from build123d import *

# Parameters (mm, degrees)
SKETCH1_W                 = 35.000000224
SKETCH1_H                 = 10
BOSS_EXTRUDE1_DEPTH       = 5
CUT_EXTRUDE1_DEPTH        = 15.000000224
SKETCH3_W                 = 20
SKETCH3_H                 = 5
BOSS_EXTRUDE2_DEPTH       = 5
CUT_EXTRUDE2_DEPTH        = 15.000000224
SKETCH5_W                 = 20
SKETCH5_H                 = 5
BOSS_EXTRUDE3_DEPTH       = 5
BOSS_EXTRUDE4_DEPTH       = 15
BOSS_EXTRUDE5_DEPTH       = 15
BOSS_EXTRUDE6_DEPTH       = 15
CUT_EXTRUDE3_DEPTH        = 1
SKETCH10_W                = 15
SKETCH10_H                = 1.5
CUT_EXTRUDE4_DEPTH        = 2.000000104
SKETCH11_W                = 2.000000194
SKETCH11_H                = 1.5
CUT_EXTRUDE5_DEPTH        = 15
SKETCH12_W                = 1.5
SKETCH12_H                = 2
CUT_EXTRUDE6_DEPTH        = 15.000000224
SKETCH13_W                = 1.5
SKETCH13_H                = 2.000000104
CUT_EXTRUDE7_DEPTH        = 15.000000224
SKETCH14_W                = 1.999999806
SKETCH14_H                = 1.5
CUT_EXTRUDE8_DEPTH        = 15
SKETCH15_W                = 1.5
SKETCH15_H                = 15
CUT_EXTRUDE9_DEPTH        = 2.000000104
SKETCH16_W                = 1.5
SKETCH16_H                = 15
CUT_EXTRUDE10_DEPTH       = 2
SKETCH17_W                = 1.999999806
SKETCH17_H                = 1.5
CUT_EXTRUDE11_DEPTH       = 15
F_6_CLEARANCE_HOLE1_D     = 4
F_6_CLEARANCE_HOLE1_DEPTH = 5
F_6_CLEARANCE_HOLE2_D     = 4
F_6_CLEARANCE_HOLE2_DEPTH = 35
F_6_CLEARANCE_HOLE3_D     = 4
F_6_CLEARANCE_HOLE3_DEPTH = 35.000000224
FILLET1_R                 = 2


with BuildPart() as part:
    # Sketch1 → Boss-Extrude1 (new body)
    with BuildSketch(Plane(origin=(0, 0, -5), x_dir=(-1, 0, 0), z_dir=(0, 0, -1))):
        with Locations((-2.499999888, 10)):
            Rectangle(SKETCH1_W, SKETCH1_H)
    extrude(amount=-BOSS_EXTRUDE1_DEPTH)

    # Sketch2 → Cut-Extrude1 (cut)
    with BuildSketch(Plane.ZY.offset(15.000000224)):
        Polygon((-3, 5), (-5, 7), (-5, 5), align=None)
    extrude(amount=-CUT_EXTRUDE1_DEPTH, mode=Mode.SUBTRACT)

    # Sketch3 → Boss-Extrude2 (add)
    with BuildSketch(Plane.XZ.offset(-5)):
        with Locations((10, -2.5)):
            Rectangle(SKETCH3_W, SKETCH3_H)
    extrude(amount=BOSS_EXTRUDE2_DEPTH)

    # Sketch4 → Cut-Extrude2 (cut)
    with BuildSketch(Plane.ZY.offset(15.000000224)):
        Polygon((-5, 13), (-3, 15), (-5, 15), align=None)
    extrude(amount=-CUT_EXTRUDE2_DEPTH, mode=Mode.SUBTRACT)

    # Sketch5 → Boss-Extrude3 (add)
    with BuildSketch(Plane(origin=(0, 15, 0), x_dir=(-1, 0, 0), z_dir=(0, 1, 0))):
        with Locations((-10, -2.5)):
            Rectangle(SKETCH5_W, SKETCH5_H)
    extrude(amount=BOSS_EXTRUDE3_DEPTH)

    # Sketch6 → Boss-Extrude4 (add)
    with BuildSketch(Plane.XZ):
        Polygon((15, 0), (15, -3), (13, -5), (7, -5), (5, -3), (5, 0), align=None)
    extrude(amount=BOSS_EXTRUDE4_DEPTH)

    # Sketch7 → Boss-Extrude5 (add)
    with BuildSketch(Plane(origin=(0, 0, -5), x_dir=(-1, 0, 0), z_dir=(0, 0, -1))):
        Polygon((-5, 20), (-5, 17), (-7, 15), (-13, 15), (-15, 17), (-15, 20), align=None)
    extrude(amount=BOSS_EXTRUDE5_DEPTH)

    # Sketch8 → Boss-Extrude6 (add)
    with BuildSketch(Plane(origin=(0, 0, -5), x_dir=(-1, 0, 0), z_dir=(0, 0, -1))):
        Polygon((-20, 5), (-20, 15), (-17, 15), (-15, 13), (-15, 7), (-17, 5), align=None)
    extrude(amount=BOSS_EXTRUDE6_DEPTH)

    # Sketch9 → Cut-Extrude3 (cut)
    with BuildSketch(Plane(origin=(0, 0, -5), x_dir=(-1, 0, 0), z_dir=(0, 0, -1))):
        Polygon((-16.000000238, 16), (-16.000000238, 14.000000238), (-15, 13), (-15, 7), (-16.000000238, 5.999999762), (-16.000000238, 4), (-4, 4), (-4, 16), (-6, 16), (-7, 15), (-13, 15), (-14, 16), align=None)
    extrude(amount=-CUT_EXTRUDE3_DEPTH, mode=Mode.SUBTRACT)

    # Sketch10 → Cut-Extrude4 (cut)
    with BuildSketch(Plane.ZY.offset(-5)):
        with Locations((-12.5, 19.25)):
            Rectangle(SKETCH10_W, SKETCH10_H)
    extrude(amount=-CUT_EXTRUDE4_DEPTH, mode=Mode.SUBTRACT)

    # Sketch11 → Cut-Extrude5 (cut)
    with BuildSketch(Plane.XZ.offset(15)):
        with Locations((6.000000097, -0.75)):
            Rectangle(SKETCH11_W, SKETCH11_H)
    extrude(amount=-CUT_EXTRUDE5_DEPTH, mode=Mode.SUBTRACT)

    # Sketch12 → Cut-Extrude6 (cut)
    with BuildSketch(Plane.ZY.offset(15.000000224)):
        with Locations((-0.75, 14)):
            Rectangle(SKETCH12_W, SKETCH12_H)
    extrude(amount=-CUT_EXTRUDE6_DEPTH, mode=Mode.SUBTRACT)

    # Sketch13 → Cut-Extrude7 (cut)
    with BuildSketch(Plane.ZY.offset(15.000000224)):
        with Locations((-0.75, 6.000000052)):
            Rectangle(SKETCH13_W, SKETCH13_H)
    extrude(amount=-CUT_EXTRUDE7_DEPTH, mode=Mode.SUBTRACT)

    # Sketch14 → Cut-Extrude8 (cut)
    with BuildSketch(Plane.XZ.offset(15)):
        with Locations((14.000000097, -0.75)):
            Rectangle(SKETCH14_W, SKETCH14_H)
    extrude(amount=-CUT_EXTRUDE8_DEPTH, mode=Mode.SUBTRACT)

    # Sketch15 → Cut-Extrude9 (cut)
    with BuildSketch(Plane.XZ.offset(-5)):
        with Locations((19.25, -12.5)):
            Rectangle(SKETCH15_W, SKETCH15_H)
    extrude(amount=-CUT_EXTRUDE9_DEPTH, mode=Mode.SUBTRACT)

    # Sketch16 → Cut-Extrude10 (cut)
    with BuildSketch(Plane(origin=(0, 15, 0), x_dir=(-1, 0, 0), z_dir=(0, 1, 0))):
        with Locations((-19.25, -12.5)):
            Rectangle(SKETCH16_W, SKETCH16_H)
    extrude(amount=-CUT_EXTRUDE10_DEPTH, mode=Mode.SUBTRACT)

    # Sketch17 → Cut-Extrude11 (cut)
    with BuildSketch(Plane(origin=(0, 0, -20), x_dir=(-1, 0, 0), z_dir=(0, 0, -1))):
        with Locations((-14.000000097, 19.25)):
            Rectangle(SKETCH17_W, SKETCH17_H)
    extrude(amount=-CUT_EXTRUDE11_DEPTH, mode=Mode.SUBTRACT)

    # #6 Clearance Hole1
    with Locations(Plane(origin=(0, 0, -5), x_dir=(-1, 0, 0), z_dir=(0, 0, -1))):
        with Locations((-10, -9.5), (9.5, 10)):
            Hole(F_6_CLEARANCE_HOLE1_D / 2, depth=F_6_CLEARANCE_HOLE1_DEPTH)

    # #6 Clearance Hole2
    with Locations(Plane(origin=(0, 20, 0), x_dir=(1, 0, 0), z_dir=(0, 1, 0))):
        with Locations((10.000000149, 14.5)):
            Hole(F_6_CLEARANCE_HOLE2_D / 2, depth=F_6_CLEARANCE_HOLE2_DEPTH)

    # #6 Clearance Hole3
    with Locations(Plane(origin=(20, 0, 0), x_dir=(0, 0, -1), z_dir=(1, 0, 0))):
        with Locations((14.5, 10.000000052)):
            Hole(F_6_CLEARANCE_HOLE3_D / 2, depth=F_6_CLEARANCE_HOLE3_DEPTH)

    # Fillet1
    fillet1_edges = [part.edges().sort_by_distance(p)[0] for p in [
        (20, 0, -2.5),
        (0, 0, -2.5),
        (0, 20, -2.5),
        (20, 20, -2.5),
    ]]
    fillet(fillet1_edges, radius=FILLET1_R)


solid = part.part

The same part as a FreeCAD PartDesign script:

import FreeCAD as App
import Part
import Sketcher

V = App.Vector
Q = App.Units.Quantity


def edges_at(feature, points):
    """Names of the edges that pass closest to the given points."""
    edges = feature.Shape.Edges
    near = lambda p: min(range(len(edges)), key=lambda i: edges[i].distToShape(Part.Vertex(*p))[0])
    return sorted({f"Edge{near(p) + 1}" for p in points})

doc = App.newDocument("Part")
body = doc.addObject("PartDesign::Body", "Body")

# Sketch on XY plane
sketch1 = doc.addObject("Sketcher::SketchObject", "Sketch")
body.addObject(sketch1)
sketch1.AttachmentSupport = (doc.XY_Plane, [""])
sketch1.MapMode = "FlatFace"
sketch1.AttachmentOffset = App.Placement(V(0, 0, -5), App.Rotation())
sketch1.addGeometry(Part.LineSegment(V(20, 15, 0), V(20, 5, 0)), False)
sketch1.addGeometry(Part.LineSegment(V(20, 5, 0), V(-15, 5, 0)), False)
sketch1.addGeometry(Part.LineSegment(V(-15, 5, 0), V(-15, 15, 0)), False)
sketch1.addGeometry(Part.LineSegment(V(-15, 15, 0), V(20, 15, 0)), False)
sketch1.addConstraint(Sketcher.Constraint("Coincident", 0, 2, 1, 1))
sketch1.addConstraint(Sketcher.Constraint("Coincident", 1, 2, 2, 1))
sketch1.addConstraint(Sketcher.Constraint("Coincident", 2, 2, 3, 1))
sketch1.addConstraint(Sketcher.Constraint("Coincident", 3, 2, 0, 1))
sketch1.addConstraint(Sketcher.Constraint("Vertical", 0))
sketch1.addConstraint(Sketcher.Constraint("Horizontal", 1))
sketch1.addConstraint(Sketcher.Constraint("Vertical", 2))
sketch1.addConstraint(Sketcher.Constraint("Horizontal", 3))
sketch1.addConstraint(Sketcher.Constraint("DistanceX", 1, 2, 1, 1, Q("35 mm")))
sketch1.addConstraint(Sketcher.Constraint("DistanceY", 0, 2, 0, 1, Q("10 mm")))
sketch1.addConstraint(Sketcher.Constraint("DistanceX", -1, 1, 0, 2, Q("20 mm")))
sketch1.addConstraint(Sketcher.Constraint("DistanceY", -1, 1, 0, 2, Q("5 mm")))
pad1 = doc.addObject("PartDesign::Pad", "Pad")
body.addObject(pad1)
pad1.Profile = sketch1
pad1.Length = 5

# Sketch on YZ plane
sketch2 = doc.addObject("Sketcher::SketchObject", "Sketch001")
body.addObject(sketch2)
sketch2.AttachmentSupport = (doc.YZ_Plane, [""])
sketch2.MapMode = "FlatFace"
sketch2.AttachmentOffset = App.Placement(V(0, 0, -15), App.Rotation())
sketch2.addGeometry(Part.LineSegment(V(5, -3, 0), V(7, -5, 0)), False)
sketch2.addGeometry(Part.LineSegment(V(7, -5, 0), V(5, -5, 0)), False)
sketch2.addGeometry(Part.LineSegment(V(5, -5, 0), V(5, -3, 0)), False)
sketch2.addConstraint(Sketcher.Constraint("Coincident", 0, 2, 1, 1))
sketch2.addConstraint(Sketcher.Constraint("Coincident", 1, 2, 2, 1))
sketch2.addConstraint(Sketcher.Constraint("Coincident", 2, 2, 0, 1))
sketch2.addConstraint(Sketcher.Constraint("Horizontal", 1))
sketch2.addConstraint(Sketcher.Constraint("Vertical", 2))
sketch2.addConstraint(Sketcher.Constraint("Equal", 1, 2))
sketch2.addConstraint(Sketcher.Constraint("DistanceX", 1, 2, 1, 1, Q("2 mm")))
sketch2.addConstraint(Sketcher.Constraint("DistanceX", -1, 1, 0, 2, Q("7 mm")))
sketch2.addConstraint(Sketcher.Constraint("DistanceY", 0, 2, -1, 1, Q("5 mm")))
pocket1 = doc.addObject("PartDesign::Pocket", "Pocket")
body.addObject(pocket1)
pocket1.Profile = sketch2
pocket1.Length = 15
pocket1.Reversed = True

# Sketch on XZ plane
sketch3 = doc.addObject("Sketcher::SketchObject", "Sketch002")
body.addObject(sketch3)
sketch3.AttachmentSupport = (doc.XZ_Plane, [""])
sketch3.MapMode = "FlatFace"
sketch3.AttachmentOffset = App.Placement(V(0, 0, -5), App.Rotation())
sketch3.addGeometry(Part.LineSegment(V(0, 0, 0), V(0, -5, 0)), False)
sketch3.addGeometry(Part.LineSegment(V(0, -5, 0), V(20, -5, 0)), False)
sketch3.addGeometry(Part.LineSegment(V(20, -5, 0), V(20, 0, 0)), False)
sketch3.addGeometry(Part.LineSegment(V(20, 0, 0), V(0, 0, 0)), False)
sketch3.addConstraint(Sketcher.Constraint("Coincident", 0, 2, 1, 1))
sketch3.addConstraint(Sketcher.Constraint("Coincident", 1, 2, 2, 1))
sketch3.addConstraint(Sketcher.Constraint("Coincident", 2, 2, 3, 1))
sketch3.addConstraint(Sketcher.Constraint("Coincident", 3, 2, 0, 1))
sketch3.addConstraint(Sketcher.Constraint("Vertical", 0))
sketch3.addConstraint(Sketcher.Constraint("Horizontal", 1))
sketch3.addConstraint(Sketcher.Constraint("Vertical", 2))
sketch3.addConstraint(Sketcher.Constraint("Horizontal", 3))
sketch3.addConstraint(Sketcher.Constraint("Coincident", 3, 2, -1, 1))
sketch3.addConstraint(Sketcher.Constraint("DistanceX", 1, 1, 1, 2, Q("20 mm")))
sketch3.addConstraint(Sketcher.Constraint("DistanceY", 0, 2, 0, 1, Q("5 mm")))
pad2 = doc.addObject("PartDesign::Pad", "Pad001")
body.addObject(pad2)
pad2.Profile = sketch3
pad2.Length = 5

# Sketch on YZ plane
sketch4 = doc.addObject("Sketcher::SketchObject", "Sketch003")
body.addObject(sketch4)
sketch4.AttachmentSupport = (doc.YZ_Plane, [""])
sketch4.MapMode = "FlatFace"
sketch4.AttachmentOffset = App.Placement(V(0, 0, -15), App.Rotation())
sketch4.addGeometry(Part.LineSegment(V(13, -5, 0), V(15, -3, 0)), False)
sketch4.addGeometry(Part.LineSegment(V(15, -3, 0), V(15, -5, 0)), False)
sketch4.addGeometry(Part.LineSegment(V(15, -5, 0), V(13, -5, 0)), False)
sketch4.addConstraint(Sketcher.Constraint("Coincident", 0, 2, 1, 1))
sketch4.addConstraint(Sketcher.Constraint("Coincident", 1, 2, 2, 1))
sketch4.addConstraint(Sketcher.Constraint("Coincident", 2, 2, 0, 1))
sketch4.addConstraint(Sketcher.Constraint("Vertical", 1))
sketch4.addConstraint(Sketcher.Constraint("Horizontal", 2))
sketch4.addConstraint(Sketcher.Constraint("Equal", 2, 1))
sketch4.addConstraint(Sketcher.Constraint("DistanceX", 2, 2, 2, 1, Q("2 mm")))
sketch4.addConstraint(Sketcher.Constraint("DistanceX", -1, 1, 0, 2, Q("15 mm")))
sketch4.addConstraint(Sketcher.Constraint("DistanceY", 0, 2, -1, 1, Q("3 mm")))
pocket2 = doc.addObject("PartDesign::Pocket", "Pocket001")
body.addObject(pocket2)
pocket2.Profile = sketch4
pocket2.Length = 15
pocket2.Reversed = True

# Sketch on XZ plane
sketch5 = doc.addObject("Sketcher::SketchObject", "Sketch004")
body.addObject(sketch5)
sketch5.AttachmentSupport = (doc.XZ_Plane, [""])
sketch5.MapMode = "FlatFace"
sketch5.AttachmentOffset = App.Placement(V(0, 0, -15), App.Rotation())
sketch5.addGeometry(Part.LineSegment(V(20, 0, 0), V(20, -5, 0)), False)
sketch5.addGeometry(Part.LineSegment(V(20, -5, 0), V(0, -5, 0)), False)
sketch5.addGeometry(Part.LineSegment(V(0, -5, 0), V(0, 0, 0)), False)
sketch5.addGeometry(Part.LineSegment(V(0, 0, 0), V(20, 0, 0)), False)
sketch5.addConstraint(Sketcher.Constraint("Coincident", 0, 2, 1, 1))
sketch5.addConstraint(Sketcher.Constraint("Coincident", 1, 2, 2, 1))
sketch5.addConstraint(Sketcher.Constraint("Coincident", 2, 2, 3, 1))
sketch5.addConstraint(Sketcher.Constraint("Coincident", 3, 2, 0, 1))
sketch5.addConstraint(Sketcher.Constraint("Vertical", 0))
sketch5.addConstraint(Sketcher.Constraint("Horizontal", 1))
sketch5.addConstraint(Sketcher.Constraint("Vertical", 2))
sketch5.addConstraint(Sketcher.Constraint("Horizontal", 3))
sketch5.addConstraint(Sketcher.Constraint("Coincident", 2, 2, -1, 1))
sketch5.addConstraint(Sketcher.Constraint("DistanceX", 1, 2, 1, 1, Q("20 mm")))
sketch5.addConstraint(Sketcher.Constraint("DistanceY", 0, 2, 0, 1, Q("5 mm")))
pad3 = doc.addObject("PartDesign::Pad", "Pad002")
body.addObject(pad3)
pad3.Profile = sketch5
pad3.Length = 5
pad3.Reversed = True

# Sketch on XZ plane
sketch6 = doc.addObject("Sketcher::SketchObject", "Sketch005")
body.addObject(sketch6)
sketch6.AttachmentSupport = (doc.XZ_Plane, [""])
sketch6.MapMode = "FlatFace"
sketch6.addGeometry(Part.LineSegment(V(15, -3, 0), V(15, 0, 0)), False)
sketch6.addGeometry(Part.LineSegment(V(15, 0, 0), V(5, 0, 0)), False)
sketch6.addGeometry(Part.LineSegment(V(5, 0, 0), V(5, -3, 0)), False)
sketch6.addGeometry(Part.LineSegment(V(5, -3, 0), V(7, -5, 0)), False)
sketch6.addGeometry(Part.LineSegment(V(7, -5, 0), V(13, -5, 0)), False)
sketch6.addGeometry(Part.LineSegment(V(13, -5, 0), V(15, -3, 0)), False)
sketch6.addConstraint(Sketcher.Constraint("Coincident", 0, 2, 1, 1))
sketch6.addConstraint(Sketcher.Constraint("Coincident", 1, 2, 2, 1))
sketch6.addConstraint(Sketcher.Constraint("Coincident", 2, 2, 3, 1))
sketch6.addConstraint(Sketcher.Constraint("Coincident", 3, 2, 4, 1))
sketch6.addConstraint(Sketcher.Constraint("Coincident", 4, 2, 5, 1))
sketch6.addConstraint(Sketcher.Constraint("Coincident", 5, 2, 0, 1))
sketch6.addConstraint(Sketcher.Constraint("Vertical", 0))
sketch6.addConstraint(Sketcher.Constraint("Horizontal", 1))
sketch6.addConstraint(Sketcher.Constraint("Vertical", 2))
sketch6.addConstraint(Sketcher.Constraint("Horizontal", 4))
sketch6.addConstraint(Sketcher.Constraint("PointOnObject", 0, 2, -1))
sketch6.addConstraint(Sketcher.Constraint("Perpendicular", 3, 5))
sketch6.addConstraint(Sketcher.Constraint("Horizontal", 2, 2, 5, 2))
sketch6.addConstraint(Sketcher.Constraint("Equal", 3, 5))
sketch6.addConstraint(Sketcher.Constraint("DistanceX", 1, 2, 1, 1, Q("10 mm")))
sketch6.addConstraint(Sketcher.Constraint("DistanceX", 4, 1, 4, 2, Q("6 mm")))
sketch6.addConstraint(Sketcher.Constraint("DistanceY", 0, 1, 0, 2, Q("3 mm")))
sketch6.addConstraint(Sketcher.Constraint("DistanceX", -1, 1, 0, 2, Q("15 mm")))
pad4 = doc.addObject("PartDesign::Pad", "Pad003")
body.addObject(pad4)
pad4.Profile = sketch6
pad4.Length = 15

# Sketch on XY plane
sketch7 = doc.addObject("Sketcher::SketchObject", "Sketch006")
body.addObject(sketch7)
sketch7.AttachmentSupport = (doc.XY_Plane, [""])
sketch7.MapMode = "FlatFace"
sketch7.AttachmentOffset = App.Placement(V(0, 0, -5), App.Rotation())
sketch7.addGeometry(Part.LineSegment(V(5, 17, 0), V(5, 20, 0)), False)
sketch7.addGeometry(Part.LineSegment(V(5, 20, 0), V(15, 20, 0)), False)
sketch7.addGeometry(Part.LineSegment(V(15, 20, 0), V(15, 17, 0)), False)
sketch7.addGeometry(Part.LineSegment(V(15, 17, 0), V(13, 15, 0)), False)
sketch7.addGeometry(Part.LineSegment(V(13, 15, 0), V(7, 15, 0)), False)
sketch7.addGeometry(Part.LineSegment(V(7, 15, 0), V(5, 17, 0)), False)
sketch7.addConstraint(Sketcher.Constraint("Coincident", 0, 2, 1, 1))
sketch7.addConstraint(Sketcher.Constraint("Coincident", 1, 2, 2, 1))
sketch7.addConstraint(Sketcher.Constraint("Coincident", 2, 2, 3, 1))
sketch7.addConstraint(Sketcher.Constraint("Coincident", 3, 2, 4, 1))
sketch7.addConstraint(Sketcher.Constraint("Coincident", 4, 2, 5, 1))
sketch7.addConstraint(Sketcher.Constraint("Coincident", 5, 2, 0, 1))
sketch7.addConstraint(Sketcher.Constraint("Vertical", 0))
sketch7.addConstraint(Sketcher.Constraint("Horizontal", 1))
sketch7.addConstraint(Sketcher.Constraint("Vertical", 2))
sketch7.addConstraint(Sketcher.Constraint("Horizontal", 4))
sketch7.addConstraint(Sketcher.Constraint("Perpendicular", 3, 5))
sketch7.addConstraint(Sketcher.Constraint("Horizontal", 2, 2, 5, 2))
sketch7.addConstraint(Sketcher.Constraint("Equal", 3, 5))
sketch7.addConstraint(Sketcher.Constraint("DistanceX", 1, 1, 1, 2, Q("10 mm")))
sketch7.addConstraint(Sketcher.Constraint("DistanceX", 4, 2, 4, 1, Q("6 mm")))
sketch7.addConstraint(Sketcher.Constraint("DistanceY", 0, 1, 0, 2, Q("3 mm")))
sketch7.addConstraint(Sketcher.Constraint("DistanceX", -1, 1, 0, 2, Q("5 mm")))
sketch7.addConstraint(Sketcher.Constraint("DistanceY", -1, 1, 0, 2, Q("20 mm")))
pad5 = doc.addObject("PartDesign::Pad", "Pad004")
body.addObject(pad5)
pad5.Profile = sketch7
pad5.Length = 15
pad5.Reversed = True

# Sketch on XY plane
sketch8 = doc.addObject("Sketcher::SketchObject", "Sketch007")
body.addObject(sketch8)
sketch8.AttachmentSupport = (doc.XY_Plane, [""])
sketch8.MapMode = "FlatFace"
sketch8.AttachmentOffset = App.Placement(V(0, 0, -5), App.Rotation())
sketch8.addGeometry(Part.LineSegment(V(20, 15, 0), V(20, 5, 0)), False)
sketch8.addGeometry(Part.LineSegment(V(20, 5, 0), V(17, 5, 0)), False)
sketch8.addGeometry(Part.LineSegment(V(17, 5, 0), V(15, 7, 0)), False)
sketch8.addGeometry(Part.LineSegment(V(15, 7, 0), V(15, 13, 0)), False)
sketch8.addGeometry(Part.LineSegment(V(15, 13, 0), V(17, 15, 0)), False)
sketch8.addGeometry(Part.LineSegment(V(17, 15, 0), V(20, 15, 0)), False)
sketch8.addConstraint(Sketcher.Constraint("Coincident", 0, 2, 1, 1))
sketch8.addConstraint(Sketcher.Constraint("Coincident", 1, 2, 2, 1))
sketch8.addConstraint(Sketcher.Constraint("Coincident", 2, 2, 3, 1))
sketch8.addConstraint(Sketcher.Constraint("Coincident", 3, 2, 4, 1))
sketch8.addConstraint(Sketcher.Constraint("Coincident", 4, 2, 5, 1))
sketch8.addConstraint(Sketcher.Constraint("Coincident", 5, 2, 0, 1))
sketch8.addConstraint(Sketcher.Constraint("Vertical", 0))
sketch8.addConstraint(Sketcher.Constraint("Horizontal", 1))
sketch8.addConstraint(Sketcher.Constraint("Vertical", 3))
sketch8.addConstraint(Sketcher.Constraint("Horizontal", 5))
sketch8.addConstraint(Sketcher.Constraint("Perpendicular", 2, 4))
sketch8.addConstraint(Sketcher.Constraint("Vertical", 1, 2, 4, 2))
sketch8.addConstraint(Sketcher.Constraint("Equal", 2, 4))
sketch8.addConstraint(Sketcher.Constraint("DistanceX", 1, 2, 1, 1, Q("3 mm")))
sketch8.addConstraint(Sketcher.Constraint("DistanceY", 0, 2, 0, 1, Q("10 mm")))
sketch8.addConstraint(Sketcher.Constraint("DistanceY", 3, 1, 3, 2, Q("6 mm")))
sketch8.addConstraint(Sketcher.Constraint("DistanceX", -1, 1, 0, 2, Q("20 mm")))
sketch8.addConstraint(Sketcher.Constraint("DistanceY", -1, 1, 0, 2, Q("5 mm")))
pad6 = doc.addObject("PartDesign::Pad", "Pad005")
body.addObject(pad6)
pad6.Profile = sketch8
pad6.Length = 15
pad6.Reversed = True

# Sketch on XY plane
sketch9 = doc.addObject("Sketcher::SketchObject", "Sketch008")
body.addObject(sketch9)
sketch9.AttachmentSupport = (doc.XY_Plane, [""])
sketch9.MapMode = "FlatFace"
sketch9.AttachmentOffset = App.Placement(V(0, 0, -5), App.Rotation())
sketch9.addGeometry(Part.LineSegment(V(16, 16, 0), V(16, 14, 0)), False)
sketch9.addGeometry(Part.LineSegment(V(16, 14, 0), V(15, 13, 0)), False)
sketch9.addGeometry(Part.LineSegment(V(15, 13, 0), V(15, 7, 0)), False)
sketch9.addGeometry(Part.LineSegment(V(15, 7, 0), V(16, 6, 0)), False)
sketch9.addGeometry(Part.LineSegment(V(16, 6, 0), V(16, 4, 0)), False)
sketch9.addGeometry(Part.LineSegment(V(16, 4, 0), V(4, 4, 0)), False)
sketch9.addGeometry(Part.LineSegment(V(4, 4, 0), V(4, 16, 0)), False)
sketch9.addGeometry(Part.LineSegment(V(4, 16, 0), V(6, 16, 0)), False)
sketch9.addGeometry(Part.LineSegment(V(6, 16, 0), V(7, 15, 0)), False)
sketch9.addGeometry(Part.LineSegment(V(7, 15, 0), V(13, 15, 0)), False)
sketch9.addGeometry(Part.LineSegment(V(13, 15, 0), V(14, 16, 0)), False)
sketch9.addGeometry(Part.LineSegment(V(14, 16, 0), V(16, 16, 0)), False)
sketch9.addConstraint(Sketcher.Constraint("Coincident", 0, 2, 1, 1))
sketch9.addConstraint(Sketcher.Constraint("Coincident", 1, 2, 2, 1))
sketch9.addConstraint(Sketcher.Constraint("Coincident", 2, 2, 3, 1))
sketch9.addConstraint(Sketcher.Constraint("Coincident", 3, 2, 4, 1))
sketch9.addConstraint(Sketcher.Constraint("Coincident", 4, 2, 5, 1))
sketch9.addConstraint(Sketcher.Constraint("Coincident", 5, 2, 6, 1))
sketch9.addConstraint(Sketcher.Constraint("Coincident", 6, 2, 7, 1))
sketch9.addConstraint(Sketcher.Constraint("Coincident", 7, 2, 8, 1))
sketch9.addConstraint(Sketcher.Constraint("Coincident", 8, 2, 9, 1))
sketch9.addConstraint(Sketcher.Constraint("Coincident", 9, 2, 10, 1))
sketch9.addConstraint(Sketcher.Constraint("Coincident", 10, 2, 11, 1))
sketch9.addConstraint(Sketcher.Constraint("Coincident", 11, 2, 0, 1))
sketch9.addConstraint(Sketcher.Constraint("Vertical", 0))
sketch9.addConstraint(Sketcher.Constraint("Vertical", 2))
sketch9.addConstraint(Sketcher.Constraint("Vertical", 4))
sketch9.addConstraint(Sketcher.Constraint("Horizontal", 5))
sketch9.addConstraint(Sketcher.Constraint("Vertical", 6))
sketch9.addConstraint(Sketcher.Constraint("Horizontal", 7))
sketch9.addConstraint(Sketcher.Constraint("Horizontal", 9))
sketch9.addConstraint(Sketcher.Constraint("Horizontal", 11))
sketch9.addConstraint(Sketcher.Constraint("Perpendicular", 1, 3))
sketch9.addConstraint(Sketcher.Constraint("Parallel", 3, 8))
sketch9.addConstraint(Sketcher.Constraint("Perpendicular", 8, 10))
sketch9.addConstraint(Sketcher.Constraint("Horizontal", 7, 2, 10, 2))
sketch9.addConstraint(Sketcher.Constraint("Vertical", 0, 2, 3, 2))
sketch9.addConstraint(Sketcher.Constraint("Equal", 7, 11))
sketch9.addConstraint(Sketcher.Constraint("Equal", 11, 0))
sketch9.addConstraint(Sketcher.Constraint("Equal", 9, 2))
sketch9.addConstraint(Sketcher.Constraint("Equal", 0, 4))
sketch9.addConstraint(Sketcher.Constraint("Equal", 5, 6))
sketch9.addConstraint(Sketcher.Constraint("Equal", 1, 3))
sketch9.addConstraint(Sketcher.Constraint("DistanceX", 5, 2, 5, 1, Q("12 mm")))
sketch9.addConstraint(Sketcher.Constraint("DistanceX", 7, 1, 7, 2, Q("2 mm")))
sketch9.addConstraint(Sketcher.Constraint("DistanceX", 9, 1, 9, 2, Q("6 mm")))
sketch9.addConstraint(Sketcher.Constraint("DistanceX", -1, 1, 0, 2, Q("16 mm")))
sketch9.addConstraint(Sketcher.Constraint("DistanceY", -1, 1, 0, 2, Q("14 mm")))
pocket3 = doc.addObject("PartDesign::Pocket", "Pocket002")
body.addObject(pocket3)
pocket3.Profile = sketch9
pocket3.Length = 1
pocket3.Reversed = True

# Sketch on YZ plane
sketch10 = doc.addObject("Sketcher::SketchObject", "Sketch009")
body.addObject(sketch10)
sketch10.AttachmentSupport = (doc.YZ_Plane, [""])
sketch10.MapMode = "FlatFace"
sketch10.AttachmentOffset = App.Placement(V(0, 0, 5), App.Rotation())
sketch10.addGeometry(Part.LineSegment(V(20, -20, 0), V(18.5, -20, 0)), False)
sketch10.addGeometry(Part.LineSegment(V(18.5, -20, 0), V(18.5, -5, 0)), False)
sketch10.addGeometry(Part.LineSegment(V(18.5, -5, 0), V(20, -5, 0)), False)
sketch10.addGeometry(Part.LineSegment(V(20, -5, 0), V(20, -20, 0)), False)
sketch10.addConstraint(Sketcher.Constraint("Coincident", 0, 2, 1, 1))
sketch10.addConstraint(Sketcher.Constraint("Coincident", 1, 2, 2, 1))
sketch10.addConstraint(Sketcher.Constraint("Coincident", 2, 2, 3, 1))
sketch10.addConstraint(Sketcher.Constraint("Coincident", 3, 2, 0, 1))
sketch10.addConstraint(Sketcher.Constraint("Horizontal", 0))
sketch10.addConstraint(Sketcher.Constraint("Vertical", 1))
sketch10.addConstraint(Sketcher.Constraint("Horizontal", 2))
sketch10.addConstraint(Sketcher.Constraint("Vertical", 3))
sketch10.addConstraint(Sketcher.Constraint("DistanceY", 1, 1, 1, 2, Q("15 mm")))
sketch10.addConstraint(Sketcher.Constraint("DistanceX", 0, 2, 0, 1, Q("1.5 mm")))
sketch10.addConstraint(Sketcher.Constraint("DistanceY", 0, 2, -1, 1, Q("20 mm")))
sketch10.addConstraint(Sketcher.Constraint("DistanceX", -1, 1, 2, 2, Q("20 mm")))
pocket4 = doc.addObject("PartDesign::Pocket", "Pocket003")
body.addObject(pocket4)
pocket4.Profile = sketch10
pocket4.Length = 2
pocket4.Reversed = True

# Sketch on XZ plane
sketch11 = doc.addObject("Sketcher::SketchObject", "Sketch010")
body.addObject(sketch11)
sketch11.AttachmentSupport = (doc.XZ_Plane, [""])
sketch11.MapMode = "FlatFace"
sketch11.AttachmentOffset = App.Placement(V(0, 0, 15), App.Rotation())
sketch11.addGeometry(Part.LineSegment(V(5, 0, 0), V(5, -1.5, 0)), False)
sketch11.addGeometry(Part.LineSegment(V(5, -1.5, 0), V(7, -1.5, 0)), False)
sketch11.addGeometry(Part.LineSegment(V(7, -1.5, 0), V(7, 0, 0)), False)
sketch11.addGeometry(Part.LineSegment(V(7, 0, 0), V(5, 0, 0)), False)
sketch11.addConstraint(Sketcher.Constraint("Coincident", 0, 2, 1, 1))
sketch11.addConstraint(Sketcher.Constraint("Coincident", 1, 2, 2, 1))
sketch11.addConstraint(Sketcher.Constraint("Coincident", 2, 2, 3, 1))
sketch11.addConstraint(Sketcher.Constraint("Coincident", 3, 2, 0, 1))
sketch11.addConstraint(Sketcher.Constraint("Vertical", 0))
sketch11.addConstraint(Sketcher.Constraint("Horizontal", 1))
sketch11.addConstraint(Sketcher.Constraint("Vertical", 2))
sketch11.addConstraint(Sketcher.Constraint("Horizontal", 3))
sketch11.addConstraint(Sketcher.Constraint("PointOnObject", 2, 2, -1))
sketch11.addConstraint(Sketcher.Constraint("DistanceX", 1, 1, 1, 2, Q("2 mm")))
sketch11.addConstraint(Sketcher.Constraint("DistanceY", 0, 2, 0, 1, Q("1.5 mm")))
sketch11.addConstraint(Sketcher.Constraint("DistanceX", -1, 1, 0, 2, Q("5 mm")))
pocket5 = doc.addObject("PartDesign::Pocket", "Pocket004")
body.addObject(pocket5)
pocket5.Profile = sketch11
pocket5.Length = 15

# Sketch on YZ plane
sketch12 = doc.addObject("Sketcher::SketchObject", "Sketch011")
body.addObject(sketch12)
sketch12.AttachmentSupport = (doc.YZ_Plane, [""])
sketch12.MapMode = "FlatFace"
sketch12.AttachmentOffset = App.Placement(V(0, 0, -15), App.Rotation())
sketch12.addGeometry(Part.LineSegment(V(15, -1.5, 0), V(13, -1.5, 0)), False)
sketch12.addGeometry(Part.LineSegment(V(13, -1.5, 0), V(13, 0, 0)), False)
sketch12.addGeometry(Part.LineSegment(V(13, 0, 0), V(15, 0, 0)), False)
sketch12.addGeometry(Part.LineSegment(V(15, 0, 0), V(15, -1.5, 0)), False)
sketch12.addConstraint(Sketcher.Constraint("Coincident", 0, 2, 1, 1))
sketch12.addConstraint(Sketcher.Constraint("Coincident", 1, 2, 2, 1))
sketch12.addConstraint(Sketcher.Constraint("Coincident", 2, 2, 3, 1))
sketch12.addConstraint(Sketcher.Constraint("Coincident", 3, 2, 0, 1))
sketch12.addConstraint(Sketcher.Constraint("Horizontal", 0))
sketch12.addConstraint(Sketcher.Constraint("Vertical", 1))
sketch12.addConstraint(Sketcher.Constraint("Horizontal", 2))
sketch12.addConstraint(Sketcher.Constraint("Vertical", 3))
sketch12.addConstraint(Sketcher.Constraint("PointOnObject", 1, 2, -1))
sketch12.addConstraint(Sketcher.Constraint("DistanceX", 0, 2, 0, 1, Q("2 mm")))
sketch12.addConstraint(Sketcher.Constraint("DistanceY", 1, 1, 1, 2, Q("1.5 mm")))
sketch12.addConstraint(Sketcher.Constraint("DistanceX", -1, 1, 0, 2, Q("13 mm")))
pocket6 = doc.addObject("PartDesign::Pocket", "Pocket005")
body.addObject(pocket6)
pocket6.Profile = sketch12
pocket6.Length = 15
pocket6.Reversed = True

# Sketch on YZ plane
sketch13 = doc.addObject("Sketcher::SketchObject", "Sketch012")
body.addObject(sketch13)
sketch13.AttachmentSupport = (doc.YZ_Plane, [""])
sketch13.MapMode = "FlatFace"
sketch13.AttachmentOffset = App.Placement(V(0, 0, -15), App.Rotation())
sketch13.addGeometry(Part.LineSegment(V(7, -1.5, 0), V(5, -1.5, 0)), False)
sketch13.addGeometry(Part.LineSegment(V(5, -1.5, 0), V(5, 0, 0)), False)
sketch13.addGeometry(Part.LineSegment(V(5, 0, 0), V(7, 0, 0)), False)
sketch13.addGeometry(Part.LineSegment(V(7, 0, 0), V(7, -1.5, 0)), False)
sketch13.addConstraint(Sketcher.Constraint("Coincident", 0, 2, 1, 1))
sketch13.addConstraint(Sketcher.Constraint("Coincident", 1, 2, 2, 1))
sketch13.addConstraint(Sketcher.Constraint("Coincident", 2, 2, 3, 1))
sketch13.addConstraint(Sketcher.Constraint("Coincident", 3, 2, 0, 1))
sketch13.addConstraint(Sketcher.Constraint("Horizontal", 0))
sketch13.addConstraint(Sketcher.Constraint("Vertical", 1))
sketch13.addConstraint(Sketcher.Constraint("Horizontal", 2))
sketch13.addConstraint(Sketcher.Constraint("Vertical", 3))
sketch13.addConstraint(Sketcher.Constraint("PointOnObject", 1, 2, -1))
sketch13.addConstraint(Sketcher.Constraint("DistanceX", 0, 2, 0, 1, Q("2 mm")))
sketch13.addConstraint(Sketcher.Constraint("DistanceY", 1, 1, 1, 2, Q("1.5 mm")))
sketch13.addConstraint(Sketcher.Constraint("DistanceX", -1, 1, 0, 2, Q("5 mm")))
pocket7 = doc.addObject("PartDesign::Pocket", "Pocket006")
body.addObject(pocket7)
pocket7.Profile = sketch13
pocket7.Length = 15
pocket7.Reversed = True

# Sketch on XZ plane
sketch14 = doc.addObject("Sketcher::SketchObject", "Sketch013")
body.addObject(sketch14)
sketch14.AttachmentSupport = (doc.XZ_Plane, [""])
sketch14.MapMode = "FlatFace"
sketch14.AttachmentOffset = App.Placement(V(0, 0, 15), App.Rotation())
sketch14.addGeometry(Part.LineSegment(V(13, 0, 0), V(13, -1.5, 0)), False)
sketch14.addGeometry(Part.LineSegment(V(13, -1.5, 0), V(15, -1.5, 0)), False)
sketch14.addGeometry(Part.LineSegment(V(15, -1.5, 0), V(15, 0, 0)), False)
sketch14.addGeometry(Part.LineSegment(V(15, 0, 0), V(13, 0, 0)), False)
sketch14.addConstraint(Sketcher.Constraint("Coincident", 0, 2, 1, 1))
sketch14.addConstraint(Sketcher.Constraint("Coincident", 1, 2, 2, 1))
sketch14.addConstraint(Sketcher.Constraint("Coincident", 2, 2, 3, 1))
sketch14.addConstraint(Sketcher.Constraint("Coincident", 3, 2, 0, 1))
sketch14.addConstraint(Sketcher.Constraint("Vertical", 0))
sketch14.addConstraint(Sketcher.Constraint("Horizontal", 1))
sketch14.addConstraint(Sketcher.Constraint("Vertical", 2))
sketch14.addConstraint(Sketcher.Constraint("Horizontal", 3))
sketch14.addConstraint(Sketcher.Constraint("PointOnObject", 2, 2, -1))
sketch14.addConstraint(Sketcher.Constraint("DistanceX", 1, 1, 1, 2, Q("2 mm")))
sketch14.addConstraint(Sketcher.Constraint("DistanceY", 0, 2, 0, 1, Q("1.5 mm")))
sketch14.addConstraint(Sketcher.Constraint("DistanceX", -1, 1, 0, 2, Q("13 mm")))
pocket8 = doc.addObject("PartDesign::Pocket", "Pocket007")
body.addObject(pocket8)
pocket8.Profile = sketch14
pocket8.Length = 15

# Sketch on XZ plane
sketch15 = doc.addObject("Sketcher::SketchObject", "Sketch014")
body.addObject(sketch15)
sketch15.AttachmentSupport = (doc.XZ_Plane, [""])
sketch15.MapMode = "FlatFace"
sketch15.AttachmentOffset = App.Placement(V(0, 0, -5), App.Rotation())
sketch15.addGeometry(Part.LineSegment(V(18.5, -5, 0), V(18.5, -20, 0)), False)
sketch15.addGeometry(Part.LineSegment(V(18.5, -20, 0), V(20, -20, 0)), False)
sketch15.addGeometry(Part.LineSegment(V(20, -20, 0), V(20, -5, 0)), False)
sketch15.addGeometry(Part.LineSegment(V(20, -5, 0), V(18.5, -5, 0)), False)
sketch15.addConstraint(Sketcher.Constraint("Coincident", 0, 2, 1, 1))
sketch15.addConstraint(Sketcher.Constraint("Coincident", 1, 2, 2, 1))
sketch15.addConstraint(Sketcher.Constraint("Coincident", 2, 2, 3, 1))
sketch15.addConstraint(Sketcher.Constraint("Coincident", 3, 2, 0, 1))
sketch15.addConstraint(Sketcher.Constraint("Vertical", 0))
sketch15.addConstraint(Sketcher.Constraint("Horizontal", 1))
sketch15.addConstraint(Sketcher.Constraint("Vertical", 2))
sketch15.addConstraint(Sketcher.Constraint("Horizontal", 3))
sketch15.addConstraint(Sketcher.Constraint("DistanceY", 0, 2, 0, 1, Q("15 mm")))
sketch15.addConstraint(Sketcher.Constraint("DistanceX", 1, 1, 1, 2, Q("1.5 mm")))
sketch15.addConstraint(Sketcher.Constraint("DistanceY", 0, 2, -1, 1, Q("20 mm")))
sketch15.addConstraint(Sketcher.Constraint("DistanceX", -1, 1, 1, 2, Q("20 mm")))
pocket9 = doc.addObject("PartDesign::Pocket", "Pocket008")
body.addObject(pocket9)
pocket9.Profile = sketch15
pocket9.Length = 2

# Sketch on XZ plane
sketch16 = doc.addObject("Sketcher::SketchObject", "Sketch015")
body.addObject(sketch16)
sketch16.AttachmentSupport = (doc.XZ_Plane, [""])
sketch16.MapMode = "FlatFace"
sketch16.AttachmentOffset = App.Placement(V(0, 0, -15), App.Rotation())
sketch16.addGeometry(Part.LineSegment(V(20, -5, 0), V(20, -20, 0)), False)
sketch16.addGeometry(Part.LineSegment(V(20, -20, 0), V(18.5, -20, 0)), False)
sketch16.addGeometry(Part.LineSegment(V(18.5, -20, 0), V(18.5, -5, 0)), False)
sketch16.addGeometry(Part.LineSegment(V(18.5, -5, 0), V(20, -5, 0)), False)
sketch16.addConstraint(Sketcher.Constraint("Coincident", 0, 2, 1, 1))
sketch16.addConstraint(Sketcher.Constraint("Coincident", 1, 2, 2, 1))
sketch16.addConstraint(Sketcher.Constraint("Coincident", 2, 2, 3, 1))
sketch16.addConstraint(Sketcher.Constraint("Coincident", 3, 2, 0, 1))
sketch16.addConstraint(Sketcher.Constraint("Vertical", 0))
sketch16.addConstraint(Sketcher.Constraint("Horizontal", 1))
sketch16.addConstraint(Sketcher.Constraint("Vertical", 2))
sketch16.addConstraint(Sketcher.Constraint("Horizontal", 3))
sketch16.addConstraint(Sketcher.Constraint("DistanceY", 0, 2, 0, 1, Q("15 mm")))
sketch16.addConstraint(Sketcher.Constraint("DistanceX", 1, 2, 1, 1, Q("1.5 mm")))
sketch16.addConstraint(Sketcher.Constraint("DistanceX", -1, 1, 0, 2, Q("20 mm")))
sketch16.addConstraint(Sketcher.Constraint("DistanceY", 0, 2, -1, 1, Q("20 mm")))
pocket10 = doc.addObject("PartDesign::Pocket", "Pocket009")
body.addObject(pocket10)
pocket10.Profile = sketch16
pocket10.Length = 2
pocket10.Reversed = True

# Sketch on XY plane
sketch17 = doc.addObject("Sketcher::SketchObject", "Sketch016")
body.addObject(sketch17)
sketch17.AttachmentSupport = (doc.XY_Plane, [""])
sketch17.MapMode = "FlatFace"
sketch17.AttachmentOffset = App.Placement(V(0, 0, -20), App.Rotation())
sketch17.addGeometry(Part.LineSegment(V(15, 20, 0), V(15, 18.5, 0)), False)
sketch17.addGeometry(Part.LineSegment(V(15, 18.5, 0), V(13, 18.5, 0)), False)
sketch17.addGeometry(Part.LineSegment(V(13, 18.5, 0), V(13, 20, 0)), False)
sketch17.addGeometry(Part.LineSegment(V(13, 20, 0), V(15, 20, 0)), False)
sketch17.addConstraint(Sketcher.Constraint("Coincident", 0, 2, 1, 1))
sketch17.addConstraint(Sketcher.Constraint("Coincident", 1, 2, 2, 1))
sketch17.addConstraint(Sketcher.Constraint("Coincident", 2, 2, 3, 1))
sketch17.addConstraint(Sketcher.Constraint("Coincident", 3, 2, 0, 1))
sketch17.addConstraint(Sketcher.Constraint("Vertical", 0))
sketch17.addConstraint(Sketcher.Constraint("Horizontal", 1))
sketch17.addConstraint(Sketcher.Constraint("Vertical", 2))
sketch17.addConstraint(Sketcher.Constraint("Horizontal", 3))
sketch17.addConstraint(Sketcher.Constraint("DistanceX", 1, 2, 1, 1, Q("2 mm")))
sketch17.addConstraint(Sketcher.Constraint("DistanceY", 0, 2, 0, 1, Q("1.5 mm")))
sketch17.addConstraint(Sketcher.Constraint("DistanceX", -1, 1, 0, 2, Q("15 mm")))
sketch17.addConstraint(Sketcher.Constraint("DistanceY", -1, 1, 2, 2, Q("20 mm")))
pocket11 = doc.addObject("PartDesign::Pocket", "Pocket010")
body.addObject(pocket11)
pocket11.Profile = sketch17
pocket11.Length = 15
pocket11.Reversed = True

# Sketch on XY plane
sketch18 = doc.addObject("Sketcher::SketchObject", "Sketch017")
body.addObject(sketch18)
sketch18.AttachmentSupport = (doc.XY_Plane, [""])
sketch18.MapMode = "FlatFace"
sketch18.AttachmentOffset = App.Placement(V(0, 0, -5), App.Rotation())
sketch18.addGeometry(Part.Circle(V(10, -9.5, 0), V(0, 0, 1), 2), False)
sketch18.addGeometry(Part.Circle(V(-9.5, 10, 0), V(0, 0, 1), 2), False)
sketch18.addConstraint(Sketcher.Constraint("Equal", 0, 1))
sketch18.addConstraint(Sketcher.Constraint("Diameter", 0, Q("4 mm")))
sketch18.addConstraint(Sketcher.Constraint("DistanceX", -1, 1, 0, 3, Q("10 mm")))
sketch18.addConstraint(Sketcher.Constraint("DistanceY", -1, 1, 1, 3, Q("10 mm")))
sketch18.addConstraint(Sketcher.Constraint("DistanceY", 0, 3, -1, 1, Q("9.5 mm")))
sketch18.addConstraint(Sketcher.Constraint("DistanceX", 1, 3, -1, 1, Q("9.5 mm")))
doc.recompute()
hole = doc.addObject("PartDesign::Hole", "Hole")
body.addObject(hole)
hole.Profile = sketch18
hole.ThreadType = "None"
hole.Diameter = 4
hole.DepthType = "Dimension"
hole.Depth = 5
hole.DrillPoint = "Flat"
hole.Reversed = True

# Sketch on XZ plane
sketch19 = doc.addObject("Sketcher::SketchObject", "Sketch018")
body.addObject(sketch19)
sketch19.AttachmentSupport = (doc.XZ_Plane, [""])
sketch19.MapMode = "FlatFace"
sketch19.AttachmentOffset = App.Placement(V(0, 0, -20), App.Rotation())
sketch19.addGeometry(Part.Circle(V(10, -14.5, 0), V(0, 0, 1), 2), False)
sketch19.addConstraint(Sketcher.Constraint("Diameter", 0, Q("4 mm")))
sketch19.addConstraint(Sketcher.Constraint("DistanceX", -1, 1, 0, 3, Q("10 mm")))
sketch19.addConstraint(Sketcher.Constraint("DistanceY", 0, 3, -1, 1, Q("14.5 mm")))
doc.recompute()
hole2 = doc.addObject("PartDesign::Hole", "Hole001")
body.addObject(hole2)
hole2.Profile = sketch19
hole2.ThreadType = "None"
hole2.Diameter = 4
hole2.DepthType = "Dimension"
hole2.Depth = 35
hole2.DrillPoint = "Flat"
hole2.Reversed = True

# Sketch on YZ plane
sketch20 = doc.addObject("Sketcher::SketchObject", "Sketch019")
body.addObject(sketch20)
sketch20.AttachmentSupport = (doc.YZ_Plane, [""])
sketch20.MapMode = "FlatFace"
sketch20.AttachmentOffset = App.Placement(V(0, 0, 20), App.Rotation())
sketch20.addGeometry(Part.Circle(V(10, -14.5, 0), V(0, 0, 1), 2), False)
sketch20.addConstraint(Sketcher.Constraint("Diameter", 0, Q("4 mm")))
sketch20.addConstraint(Sketcher.Constraint("DistanceX", -1, 1, 0, 3, Q("10 mm")))
sketch20.addConstraint(Sketcher.Constraint("DistanceY", 0, 3, -1, 1, Q("14.5 mm")))
doc.recompute()
hole3 = doc.addObject("PartDesign::Hole", "Hole002")
body.addObject(hole3)
hole3.Profile = sketch20
hole3.ThreadType = "None"
hole3.Diameter = 4
hole3.DepthType = "Dimension"
hole3.Depth = 35
hole3.DrillPoint = "Flat"
doc.recompute()

fillet = doc.addObject("PartDesign::Fillet", "Fillet")
body.addObject(fillet)
fillet.Base = (hole3, edges_at(hole3, [
    (20, 0, -2.5),
    (0, 0, -2.5),
    (0, 20, -2.5),
    (20, 20, -2.5),
]))
fillet.Radius = 2

doc.recompute()
